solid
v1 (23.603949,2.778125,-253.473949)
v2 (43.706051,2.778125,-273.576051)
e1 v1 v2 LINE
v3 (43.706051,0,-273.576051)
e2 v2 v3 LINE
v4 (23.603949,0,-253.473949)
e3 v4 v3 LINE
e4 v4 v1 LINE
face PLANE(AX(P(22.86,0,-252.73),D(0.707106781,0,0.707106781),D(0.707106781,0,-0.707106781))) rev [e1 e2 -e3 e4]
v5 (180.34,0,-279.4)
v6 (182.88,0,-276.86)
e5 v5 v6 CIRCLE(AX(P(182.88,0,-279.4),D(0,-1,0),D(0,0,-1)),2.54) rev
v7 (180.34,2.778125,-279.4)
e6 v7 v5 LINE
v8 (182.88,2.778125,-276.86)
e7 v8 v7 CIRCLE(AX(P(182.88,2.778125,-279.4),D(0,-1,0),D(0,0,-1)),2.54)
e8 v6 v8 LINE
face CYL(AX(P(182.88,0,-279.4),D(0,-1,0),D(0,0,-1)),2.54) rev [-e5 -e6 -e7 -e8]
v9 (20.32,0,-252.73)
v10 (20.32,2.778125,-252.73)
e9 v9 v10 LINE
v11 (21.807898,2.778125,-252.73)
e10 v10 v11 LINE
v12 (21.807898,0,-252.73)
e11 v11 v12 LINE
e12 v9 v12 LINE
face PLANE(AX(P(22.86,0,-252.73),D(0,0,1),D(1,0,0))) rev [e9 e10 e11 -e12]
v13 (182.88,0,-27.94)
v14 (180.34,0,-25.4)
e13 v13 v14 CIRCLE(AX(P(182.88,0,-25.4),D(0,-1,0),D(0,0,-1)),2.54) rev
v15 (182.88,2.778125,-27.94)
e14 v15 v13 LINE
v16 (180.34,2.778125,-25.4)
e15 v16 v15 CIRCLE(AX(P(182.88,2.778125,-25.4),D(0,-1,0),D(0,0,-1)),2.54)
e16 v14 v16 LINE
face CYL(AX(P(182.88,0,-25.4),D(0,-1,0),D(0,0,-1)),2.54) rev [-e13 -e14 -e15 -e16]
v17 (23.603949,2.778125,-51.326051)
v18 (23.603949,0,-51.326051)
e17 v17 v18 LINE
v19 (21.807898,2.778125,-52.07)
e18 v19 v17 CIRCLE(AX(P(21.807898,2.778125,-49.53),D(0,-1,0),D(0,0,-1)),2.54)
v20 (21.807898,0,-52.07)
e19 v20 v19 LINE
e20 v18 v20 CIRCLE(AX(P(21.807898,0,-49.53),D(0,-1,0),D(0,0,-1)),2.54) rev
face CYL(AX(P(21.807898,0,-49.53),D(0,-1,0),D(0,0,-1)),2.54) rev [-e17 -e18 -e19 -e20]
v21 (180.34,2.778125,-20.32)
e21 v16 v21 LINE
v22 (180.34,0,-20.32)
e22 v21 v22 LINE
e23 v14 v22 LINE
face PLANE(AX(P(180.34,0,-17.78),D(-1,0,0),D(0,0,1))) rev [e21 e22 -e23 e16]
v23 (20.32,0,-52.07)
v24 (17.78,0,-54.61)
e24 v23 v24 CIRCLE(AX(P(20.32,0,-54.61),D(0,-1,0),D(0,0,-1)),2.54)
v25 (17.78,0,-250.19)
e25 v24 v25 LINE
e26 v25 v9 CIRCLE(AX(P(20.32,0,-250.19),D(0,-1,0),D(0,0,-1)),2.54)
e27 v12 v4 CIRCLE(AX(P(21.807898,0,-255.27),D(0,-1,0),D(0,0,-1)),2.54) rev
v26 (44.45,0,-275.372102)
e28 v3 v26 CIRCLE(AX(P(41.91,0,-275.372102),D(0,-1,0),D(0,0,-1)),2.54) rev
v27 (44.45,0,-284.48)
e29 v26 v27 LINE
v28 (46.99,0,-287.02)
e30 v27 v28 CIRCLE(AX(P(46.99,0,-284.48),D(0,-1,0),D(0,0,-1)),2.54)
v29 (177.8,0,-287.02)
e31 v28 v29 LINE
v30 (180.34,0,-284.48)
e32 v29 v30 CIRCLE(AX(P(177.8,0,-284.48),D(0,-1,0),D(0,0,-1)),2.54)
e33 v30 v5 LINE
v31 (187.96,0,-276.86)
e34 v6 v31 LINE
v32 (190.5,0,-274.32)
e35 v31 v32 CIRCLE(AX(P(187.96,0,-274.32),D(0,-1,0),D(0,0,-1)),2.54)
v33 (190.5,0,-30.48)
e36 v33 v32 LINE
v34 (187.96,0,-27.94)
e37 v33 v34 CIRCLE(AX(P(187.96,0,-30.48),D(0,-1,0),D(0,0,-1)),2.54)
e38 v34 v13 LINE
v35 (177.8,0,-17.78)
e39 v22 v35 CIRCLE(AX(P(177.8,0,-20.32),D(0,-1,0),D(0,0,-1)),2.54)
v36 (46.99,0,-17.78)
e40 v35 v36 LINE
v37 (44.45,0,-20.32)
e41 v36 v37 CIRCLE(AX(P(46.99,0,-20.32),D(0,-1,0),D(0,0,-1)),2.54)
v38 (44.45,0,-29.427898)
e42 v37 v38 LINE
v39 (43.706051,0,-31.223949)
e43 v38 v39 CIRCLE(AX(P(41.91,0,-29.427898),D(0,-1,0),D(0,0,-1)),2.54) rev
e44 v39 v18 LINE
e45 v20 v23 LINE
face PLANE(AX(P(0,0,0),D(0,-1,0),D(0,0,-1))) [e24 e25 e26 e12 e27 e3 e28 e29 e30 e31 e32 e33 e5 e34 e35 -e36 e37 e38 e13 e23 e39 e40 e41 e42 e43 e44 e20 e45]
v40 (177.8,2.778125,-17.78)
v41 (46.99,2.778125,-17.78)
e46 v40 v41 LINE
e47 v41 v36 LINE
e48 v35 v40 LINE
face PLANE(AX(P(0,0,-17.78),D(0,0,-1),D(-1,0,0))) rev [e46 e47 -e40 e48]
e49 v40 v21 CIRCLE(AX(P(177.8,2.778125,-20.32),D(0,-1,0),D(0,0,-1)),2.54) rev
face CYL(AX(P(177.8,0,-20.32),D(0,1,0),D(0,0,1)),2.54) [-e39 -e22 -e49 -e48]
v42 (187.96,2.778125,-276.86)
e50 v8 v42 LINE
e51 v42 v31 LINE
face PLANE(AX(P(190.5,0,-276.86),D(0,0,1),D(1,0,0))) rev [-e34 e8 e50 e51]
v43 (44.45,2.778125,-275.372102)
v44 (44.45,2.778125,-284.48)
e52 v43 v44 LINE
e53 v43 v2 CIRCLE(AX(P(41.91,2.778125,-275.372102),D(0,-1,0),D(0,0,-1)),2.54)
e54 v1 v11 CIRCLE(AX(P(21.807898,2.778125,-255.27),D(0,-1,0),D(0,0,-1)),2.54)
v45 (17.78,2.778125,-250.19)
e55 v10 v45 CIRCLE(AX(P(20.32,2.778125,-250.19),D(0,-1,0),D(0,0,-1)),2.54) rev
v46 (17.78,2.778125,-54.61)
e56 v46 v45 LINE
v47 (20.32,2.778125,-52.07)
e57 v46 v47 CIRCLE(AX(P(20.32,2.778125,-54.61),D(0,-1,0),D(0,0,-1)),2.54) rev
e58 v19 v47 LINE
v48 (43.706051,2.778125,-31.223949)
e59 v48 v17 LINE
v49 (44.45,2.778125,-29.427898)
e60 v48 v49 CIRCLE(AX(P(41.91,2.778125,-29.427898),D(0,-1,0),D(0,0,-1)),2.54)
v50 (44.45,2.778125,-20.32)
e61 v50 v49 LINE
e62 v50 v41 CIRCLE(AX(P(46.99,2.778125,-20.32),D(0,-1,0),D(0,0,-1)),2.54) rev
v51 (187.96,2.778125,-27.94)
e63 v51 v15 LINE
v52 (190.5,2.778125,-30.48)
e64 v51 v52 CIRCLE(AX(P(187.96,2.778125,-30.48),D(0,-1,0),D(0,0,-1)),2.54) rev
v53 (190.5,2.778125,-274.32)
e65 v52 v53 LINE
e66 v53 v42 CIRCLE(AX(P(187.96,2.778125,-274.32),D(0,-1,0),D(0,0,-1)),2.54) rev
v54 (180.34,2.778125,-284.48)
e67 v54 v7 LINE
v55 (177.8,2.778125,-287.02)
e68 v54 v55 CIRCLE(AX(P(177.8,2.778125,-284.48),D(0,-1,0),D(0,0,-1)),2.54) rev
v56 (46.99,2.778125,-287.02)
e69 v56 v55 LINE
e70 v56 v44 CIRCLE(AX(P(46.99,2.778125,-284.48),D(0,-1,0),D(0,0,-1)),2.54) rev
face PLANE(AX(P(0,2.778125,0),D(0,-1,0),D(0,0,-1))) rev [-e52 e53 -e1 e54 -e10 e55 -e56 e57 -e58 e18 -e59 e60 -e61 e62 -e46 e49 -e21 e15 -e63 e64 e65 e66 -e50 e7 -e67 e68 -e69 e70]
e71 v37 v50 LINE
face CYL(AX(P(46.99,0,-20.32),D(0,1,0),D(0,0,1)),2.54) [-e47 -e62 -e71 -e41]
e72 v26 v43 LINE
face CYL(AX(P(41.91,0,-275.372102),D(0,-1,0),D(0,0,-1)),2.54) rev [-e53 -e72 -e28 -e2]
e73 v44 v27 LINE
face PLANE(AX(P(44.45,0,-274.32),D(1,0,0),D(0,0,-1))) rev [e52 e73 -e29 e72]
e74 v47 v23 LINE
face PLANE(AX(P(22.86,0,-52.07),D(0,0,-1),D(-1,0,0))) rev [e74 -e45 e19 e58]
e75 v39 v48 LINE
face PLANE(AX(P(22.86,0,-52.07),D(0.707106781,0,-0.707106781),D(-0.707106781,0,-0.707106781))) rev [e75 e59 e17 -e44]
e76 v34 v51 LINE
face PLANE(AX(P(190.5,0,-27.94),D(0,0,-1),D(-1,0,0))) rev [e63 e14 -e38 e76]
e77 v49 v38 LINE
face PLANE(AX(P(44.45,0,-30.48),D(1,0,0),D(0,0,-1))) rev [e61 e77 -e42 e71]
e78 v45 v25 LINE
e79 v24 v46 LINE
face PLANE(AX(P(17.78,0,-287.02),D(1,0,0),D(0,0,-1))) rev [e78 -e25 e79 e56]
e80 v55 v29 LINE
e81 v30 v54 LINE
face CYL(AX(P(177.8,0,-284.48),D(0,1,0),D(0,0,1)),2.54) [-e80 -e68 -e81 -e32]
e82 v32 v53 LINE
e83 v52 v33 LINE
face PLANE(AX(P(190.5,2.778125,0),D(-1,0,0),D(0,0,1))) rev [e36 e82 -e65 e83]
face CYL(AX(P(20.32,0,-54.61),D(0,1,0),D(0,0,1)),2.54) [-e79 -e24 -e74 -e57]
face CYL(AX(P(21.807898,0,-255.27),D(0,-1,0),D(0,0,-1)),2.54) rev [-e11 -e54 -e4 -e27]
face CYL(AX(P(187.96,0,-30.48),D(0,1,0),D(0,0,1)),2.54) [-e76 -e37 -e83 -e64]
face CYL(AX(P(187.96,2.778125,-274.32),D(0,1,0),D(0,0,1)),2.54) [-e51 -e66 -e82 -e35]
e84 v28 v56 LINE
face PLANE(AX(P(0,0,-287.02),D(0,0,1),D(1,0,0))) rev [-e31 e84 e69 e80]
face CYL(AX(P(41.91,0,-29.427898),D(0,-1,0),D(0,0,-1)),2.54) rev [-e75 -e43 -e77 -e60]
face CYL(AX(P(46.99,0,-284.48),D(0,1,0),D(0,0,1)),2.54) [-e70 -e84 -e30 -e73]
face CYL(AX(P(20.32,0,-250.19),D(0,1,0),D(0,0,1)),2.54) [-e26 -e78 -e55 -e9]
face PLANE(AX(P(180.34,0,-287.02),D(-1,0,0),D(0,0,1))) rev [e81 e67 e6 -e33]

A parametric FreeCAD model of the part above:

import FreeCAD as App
import Part
import Sketcher
Q = App.Units.Quantity


def edges_at(feature, points):
    """Names of the edges that pass closest to the given points."""
    edges = feature.Shape.Edges
    near = lambda p: min(range(len(edges)), key=lambda i: edges[i].distToShape(Part.Vertex(*p))[0])
    return sorted({f"Edge{near(p) + 1}" for p in points})

doc = App.newDocument("Part")
body = doc.addObject("PartDesign::Body", "Body")

# Sketch on XZ plane
sketch1 = body.newObject("Sketcher::SketchObject", "Sketch")
sketch1.AttachmentSupport = (doc.getObject("XZ_Plane"), [""])
sketch1.MapMode = "FlatFace"
sketch1.addGeometry([
    Part.LineSegment(App.Vector(0, -304.8, 0), App.Vector(0, 0, 0)),
    Part.LineSegment(App.Vector(0, 0, 0), App.Vector(190.5, 0, 0)),
    Part.LineSegment(App.Vector(190.5, 0, 0), App.Vector(190.5, -304.8, 0)),
    Part.LineSegment(App.Vector(190.5, -304.8, 0), App.Vector(0, -304.8, 0)),
], False)
sketch1.addConstraint([
    Sketcher.Constraint("Coincident", 0, 2, 1, 1),
    Sketcher.Constraint("Coincident", 1, 2, 2, 1),
    Sketcher.Constraint("Coincident", 2, 2, 3, 1),
    Sketcher.Constraint("Coincident", 3, 2, 0, 1),
    Sketcher.Constraint("Vertical", 0),
    Sketcher.Constraint("Horizontal", 1),
    Sketcher.Constraint("Vertical", 2),
    Sketcher.Constraint("Horizontal", 3),
    Sketcher.Constraint("Coincident", 0, 2, -1, 1),
    Sketcher.Constraint("DistanceY", 0, 1, 0, 2, Q("12 in")),
    Sketcher.Constraint("DistanceX", 1, 1, 1, 2, Q("7.5 in")),
])
pad1 = body.newObject("PartDesign::Pad", "Pad")
pad1.Profile = sketch1
pad1.Length = Q("0.109375 in")
pad1.Reversed = True

# Sketch on XZ plane
sketch2 = body.newObject("Sketcher::SketchObject", "Sketch001")
sketch2.AttachmentSupport = (doc.getObject("XZ_Plane"), [""])
sketch2.MapMode = "FlatFace"
sketch2.AttachmentOffset = App.Placement(App.Vector(0, 0, -0.109375 * 25.4), App.Rotation())
sketch2.addGeometry([
    Part.LineSegment(App.Vector(0, -17.78, 0), App.Vector(0, 0, 0)),  # 0
    Part.LineSegment(App.Vector(0, 0, 0), App.Vector(190.5, 0, 0)),  # 1
    Part.LineSegment(App.Vector(190.5, 0, 0), App.Vector(190.5, -17.78, 0)),  # 2
    Part.LineSegment(App.Vector(190.5, -17.78, 0), App.Vector(0, -17.78, 0)),  # 3
    Part.LineSegment(App.Vector(0, -304.8, 0), App.Vector(0, -287.02, 0)),  # 4
    Part.LineSegment(App.Vector(0, -287.02, 0), App.Vector(190.5, -287.02, 0)),  # 5
    Part.LineSegment(App.Vector(190.5, -287.02, 0), App.Vector(190.5, -304.8, 0)),  # 6
    Part.LineSegment(App.Vector(190.5, -304.8, 0), App.Vector(0, -304.8, 0)),  # 7
], False)
sketch2.addConstraint([
    Sketcher.Constraint("Coincident", 0, 2, 1, 1),
    Sketcher.Constraint("Coincident", 1, 2, 2, 1),
    Sketcher.Constraint("Coincident", 2, 2, 3, 1),
    Sketcher.Constraint("Coincident", 3, 2, 0, 1),
    Sketcher.Constraint("Coincident", 4, 2, 5, 1),
    Sketcher.Constraint("Coincident", 5, 2, 6, 1),
    Sketcher.Constraint("Coincident", 6, 2, 7, 1),
    Sketcher.Constraint("Coincident", 7, 2, 4, 1),
    Sketcher.Constraint("Vertical", 0),
    Sketcher.Constraint("Horizontal", 1),
    Sketcher.Constraint("Vertical", 2),
    Sketcher.Constraint("Horizontal", 3),
    Sketcher.Constraint("Vertical", 4),
    Sketcher.Constraint("Horizontal", 5),
    Sketcher.Constraint("Vertical", 6),
    Sketcher.Constraint("Horizontal", 7),
    Sketcher.Constraint("Coincident", 0, 2, -1, 1),
    Sketcher.Constraint("PointOnObject", 4, 2, -2),
    Sketcher.Constraint("Vertical", 2, 2, 5, 2),
    Sketcher.Constraint("Equal", 2, 4),
    Sketcher.Constraint("DistanceX", 1, 1, 1, 2, Q("7.5 in")),
    Sketcher.Constraint("DistanceY", 0, 1, 0, 2, Q("0.7 in")),
    Sketcher.Constraint("DistanceY", 6, 2, -1, 1, Q("12 in")),
])
pocket1 = body.newObject("PartDesign::Pocket", "Pocket")
pocket1.Profile = sketch2
pocket1.Type = "ThroughAll"
pocket1.Reversed = True

# Sketch on XZ plane
sketch3 = body.newObject("Sketcher::SketchObject", "Sketch002")
sketch3.AttachmentSupport = (doc.getObject("XZ_Plane"), [""])
sketch3.MapMode = "FlatFace"
sketch3.AttachmentOffset = App.Placement(App.Vector(0, 0, -0.109375 * 25.4), App.Rotation())
sketch3.addGeometry([
    Part.LineSegment(App.Vector(0, -287.02, 0), App.Vector(0, -17.78, 0)),
    Part.LineSegment(App.Vector(0, -17.78, 0), App.Vector(17.78, -17.78, 0)),
    Part.LineSegment(App.Vector(17.78, -17.78, 0), App.Vector(17.78, -287.02, 0)),
    Part.LineSegment(App.Vector(17.78, -287.02, 0), App.Vector(0, -287.02, 0)),
], False)
sketch3.addConstraint([
    Sketcher.Constraint("Coincident", 0, 2, 1, 1),
    Sketcher.Constraint("Coincident", 1, 2, 2, 1),
    Sketcher.Constraint("Coincident", 2, 2, 3, 1),
    Sketcher.Constraint("Coincident", 3, 2, 0, 1),
    Sketcher.Constraint("Vertical", 0),
    Sketcher.Constraint("Horizontal", 1),
    Sketcher.Constraint("Vertical", 2),
    Sketcher.Constraint("Horizontal", 3),
    Sketcher.Constraint("PointOnObject", 0, 2, -2),
    Sketcher.Constraint("DistanceX", 1, 1, 1, 2, Q("0.7 in")),
    Sketcher.Constraint("DistanceY", 0, 1, 0, 2, Q("10.6 in")),
    Sketcher.Constraint("DistanceY", 0, 2, -1, 1, Q("0.7 in")),
])
pocket2 = body.newObject("PartDesign::Pocket", "Pocket001")
pocket2.Profile = sketch3
pocket2.Type = "ThroughAll"
pocket2.Reversed = True

# Sketch on XZ plane
sketch4 = body.newObject("Sketcher::SketchObject", "Sketch003")
sketch4.AttachmentSupport = (doc.getObject("XZ_Plane"), [""])
sketch4.MapMode = "FlatFace"
sketch4.AttachmentOffset = App.Placement(App.Vector(0, 0, -0.109375 * 25.4), App.Rotation())
sketch4.addGeometry([
    Part.LineSegment(App.Vector(22.86, -252.73, 0), App.Vector(44.45, -274.32, 0)),  # 0
    Part.LineSegment(App.Vector(44.45, -274.32, 0), App.Vector(44.45, -287.02, 0)),  # 1
    Part.LineSegment(App.Vector(44.45, -287.02, 0), App.Vector(17.78, -287.02, 0)),  # 2
    Part.LineSegment(App.Vector(17.78, -287.02, 0), App.Vector(17.78, -252.73, 0)),  # 3
    Part.LineSegment(App.Vector(17.78, -252.73, 0), App.Vector(22.86, -252.73, 0)),  # 4
    Part.LineSegment(App.Vector(44.45, -30.48, 0), App.Vector(22.86, -52.07, 0)),  # 5
    Part.LineSegment(App.Vector(22.86, -52.07, 0), App.Vector(17.78, -52.07, 0)),  # 6
    Part.LineSegment(App.Vector(17.78, -52.07, 0), App.Vector(17.78, -17.78, 0)),  # 7
    Part.LineSegment(App.Vector(17.78, -17.78, 0), App.Vector(44.45, -17.78, 0)),  # 8
    Part.LineSegment(App.Vector(44.45, -17.78, 0), App.Vector(44.45, -30.48, 0)),  # 9
], False)
sketch4.addConstraint([
    Sketcher.Constraint("Coincident", 0, 2, 1, 1),
    Sketcher.Constraint("Coincident", 1, 2, 2, 1),
    Sketcher.Constraint("Coincident", 2, 2, 3, 1),
    Sketcher.Constraint("Coincident", 3, 2, 4, 1),
    Sketcher.Constraint("Coincident", 4, 2, 0, 1),
    Sketcher.Constraint("Coincident", 5, 2, 6, 1),
    Sketcher.Constraint("Coincident", 6, 2, 7, 1),
    Sketcher.Constraint("Coincident", 7, 2, 8, 1),
    Sketcher.Constraint("Coincident", 8, 2, 9, 1),
    Sketcher.Constraint("Coincident", 9, 2, 5, 1),
    Sketcher.Constraint("Vertical", 1),
    Sketcher.Constraint("Horizontal", 2),
    Sketcher.Constraint("Vertical", 3),
    Sketcher.Constraint("Horizontal", 4),
    Sketcher.Constraint("Horizontal", 6),
    Sketcher.Constraint("Vertical", 7),
    Sketcher.Constraint("Horizontal", 8),
    Sketcher.Constraint("Vertical", 9),
    Sketcher.Constraint("Perpendicular", 0, 5),
    Sketcher.Constraint("Vertical", 4, 2, 5, 2),
    Sketcher.Constraint("Vertical", 3, 2, 6, 2),
    Sketcher.Constraint("Vertical", 1, 2, 8, 2),
    Sketcher.Constraint("Equal", 3, 7),
    Sketcher.Constraint("Equal", 1, 9),
    Sketcher.Constraint("DistanceX", 4, 1, 4, 2, Q("0.2 in")),
    Sketcher.Constraint("DistanceY", 1, 2, 1, 1, Q("0.5 in")),
    Sketcher.Constraint("DistanceX", 2, 2, 2, 1, Q("1.05 in")),
    Sketcher.Constraint("DistanceY", 0, 2, -1, 1, Q("10.8 in")),
    Sketcher.Constraint("DistanceX", -1, 1, 2, 2, Q("0.7 in")),
    Sketcher.Constraint("DistanceY", 7, 2, -1, 1, Q("0.7 in")),
])
pocket3 = body.newObject("PartDesign::Pocket", "Pocket002")
pocket3.Profile = sketch4
pocket3.Type = "ThroughAll"
pocket3.Reversed = True

# Sketch on XZ plane
sketch5 = body.newObject("Sketcher::SketchObject", "Sketch004")
sketch5.AttachmentSupport = (doc.getObject("XZ_Plane"), [""])
sketch5.MapMode = "FlatFace"
sketch5.AttachmentOffset = App.Placement(App.Vector(0, 0, -0.109375 * 25.4), App.Rotation())
sketch5.addGeometry([
    Part.LineSegment(App.Vector(180.34, -287.02, 0), App.Vector(180.34, -276.86, 0)),  # 0
    Part.LineSegment(App.Vector(180.34, -276.86, 0), App.Vector(190.5, -276.86, 0)),  # 1
    Part.LineSegment(App.Vector(190.5, -276.86, 0), App.Vector(190.5, -287.02, 0)),  # 2
    Part.LineSegment(App.Vector(190.5, -287.02, 0), App.Vector(180.34, -287.02, 0)),  # 3
    Part.LineSegment(App.Vector(180.34, -27.94, 0), App.Vector(180.34, -17.78, 0)),  # 4
    Part.LineSegment(App.Vector(180.34, -17.78, 0), App.Vector(190.5, -17.78, 0)),  # 5
    Part.LineSegment(App.Vector(190.5, -17.78, 0), App.Vector(190.5, -27.94, 0)),  # 6
    Part.LineSegment(App.Vector(190.5, -27.94, 0), App.Vector(180.34, -27.94, 0)),  # 7
], False)
sketch5.addConstraint([
    Sketcher.Constraint("Coincident", 0, 2, 1, 1),
    Sketcher.Constraint("Coincident", 1, 2, 2, 1),
    Sketcher.Constraint("Coincident", 2, 2, 3, 1),
    Sketcher.Constraint("Coincident", 3, 2, 0, 1),
    Sketcher.Constraint("Coincident", 4, 2, 5, 1),
    Sketcher.Constraint("Coincident", 5, 2, 6, 1),
    Sketcher.Constraint("Coincident", 6, 2, 7, 1),
    Sketcher.Constraint("Coincident", 7, 2, 4, 1),
    Sketcher.Constraint("Vertical", 0),
    Sketcher.Constraint("Horizontal", 1),
    Sketcher.Constraint("Vertical", 2),
    Sketcher.Constraint("Horizontal", 3),
    Sketcher.Constraint("Vertical", 4),
    Sketcher.Constraint("Horizontal", 5),
    Sketcher.Constraint("Vertical", 6),
    Sketcher.Constraint("Horizontal", 7),
    Sketcher.Constraint("Vertical", 3, 2, 4, 2),
    Sketcher.Constraint("Vertical", 2, 2, 5, 2),
    Sketcher.Constraint("Equal", 7, 0),
    Sketcher.Constraint("Equal", 2, 4),
    Sketcher.Constraint("DistanceX", 1, 1, 1, 2, Q("0.4 in")),
    Sketcher.Constraint("DistanceX", -1, 1, 0, 2, Q("7.1 in")),
    Sketcher.Constraint("DistanceY", 0, 2, -1, 1, Q("10.9 in")),
    Sketcher.Constraint("DistanceY", 4, 2, -1, 1, Q("0.7 in")),
])
pocket4 = body.newObject("PartDesign::Pocket", "Pocket003")
pocket4.Profile = sketch5
pocket4.Type = "ThroughAll"
pocket4.Reversed = True
doc.recompute()

fillet = body.newObject("PartDesign::Fillet", "Fillet")
fillet.Base = (pocket4, edges_at(pocket4, [
    (190.5, 1.389, -27.94),
    (180.34, 1.389, -17.78),
    (180.34, 1.389, -27.94),
    (44.45, 1.389, -287.02),
    (44.45, 1.389, -274.32),
    (22.86, 1.389, -252.73),
    (17.78, 1.389, -252.73),
    (17.78, 1.389, -52.07),
    (22.86, 1.389, -52.07),
    (44.45, 1.389, -30.48),
    (44.45, 1.389, -17.78),
    (190.5, 1.389, -276.86),
    (180.34, 1.389, -276.86),
    (180.34, 1.389, -287.02),
]))
fillet.Radius = Q("0.1 in")

doc.recompute()
